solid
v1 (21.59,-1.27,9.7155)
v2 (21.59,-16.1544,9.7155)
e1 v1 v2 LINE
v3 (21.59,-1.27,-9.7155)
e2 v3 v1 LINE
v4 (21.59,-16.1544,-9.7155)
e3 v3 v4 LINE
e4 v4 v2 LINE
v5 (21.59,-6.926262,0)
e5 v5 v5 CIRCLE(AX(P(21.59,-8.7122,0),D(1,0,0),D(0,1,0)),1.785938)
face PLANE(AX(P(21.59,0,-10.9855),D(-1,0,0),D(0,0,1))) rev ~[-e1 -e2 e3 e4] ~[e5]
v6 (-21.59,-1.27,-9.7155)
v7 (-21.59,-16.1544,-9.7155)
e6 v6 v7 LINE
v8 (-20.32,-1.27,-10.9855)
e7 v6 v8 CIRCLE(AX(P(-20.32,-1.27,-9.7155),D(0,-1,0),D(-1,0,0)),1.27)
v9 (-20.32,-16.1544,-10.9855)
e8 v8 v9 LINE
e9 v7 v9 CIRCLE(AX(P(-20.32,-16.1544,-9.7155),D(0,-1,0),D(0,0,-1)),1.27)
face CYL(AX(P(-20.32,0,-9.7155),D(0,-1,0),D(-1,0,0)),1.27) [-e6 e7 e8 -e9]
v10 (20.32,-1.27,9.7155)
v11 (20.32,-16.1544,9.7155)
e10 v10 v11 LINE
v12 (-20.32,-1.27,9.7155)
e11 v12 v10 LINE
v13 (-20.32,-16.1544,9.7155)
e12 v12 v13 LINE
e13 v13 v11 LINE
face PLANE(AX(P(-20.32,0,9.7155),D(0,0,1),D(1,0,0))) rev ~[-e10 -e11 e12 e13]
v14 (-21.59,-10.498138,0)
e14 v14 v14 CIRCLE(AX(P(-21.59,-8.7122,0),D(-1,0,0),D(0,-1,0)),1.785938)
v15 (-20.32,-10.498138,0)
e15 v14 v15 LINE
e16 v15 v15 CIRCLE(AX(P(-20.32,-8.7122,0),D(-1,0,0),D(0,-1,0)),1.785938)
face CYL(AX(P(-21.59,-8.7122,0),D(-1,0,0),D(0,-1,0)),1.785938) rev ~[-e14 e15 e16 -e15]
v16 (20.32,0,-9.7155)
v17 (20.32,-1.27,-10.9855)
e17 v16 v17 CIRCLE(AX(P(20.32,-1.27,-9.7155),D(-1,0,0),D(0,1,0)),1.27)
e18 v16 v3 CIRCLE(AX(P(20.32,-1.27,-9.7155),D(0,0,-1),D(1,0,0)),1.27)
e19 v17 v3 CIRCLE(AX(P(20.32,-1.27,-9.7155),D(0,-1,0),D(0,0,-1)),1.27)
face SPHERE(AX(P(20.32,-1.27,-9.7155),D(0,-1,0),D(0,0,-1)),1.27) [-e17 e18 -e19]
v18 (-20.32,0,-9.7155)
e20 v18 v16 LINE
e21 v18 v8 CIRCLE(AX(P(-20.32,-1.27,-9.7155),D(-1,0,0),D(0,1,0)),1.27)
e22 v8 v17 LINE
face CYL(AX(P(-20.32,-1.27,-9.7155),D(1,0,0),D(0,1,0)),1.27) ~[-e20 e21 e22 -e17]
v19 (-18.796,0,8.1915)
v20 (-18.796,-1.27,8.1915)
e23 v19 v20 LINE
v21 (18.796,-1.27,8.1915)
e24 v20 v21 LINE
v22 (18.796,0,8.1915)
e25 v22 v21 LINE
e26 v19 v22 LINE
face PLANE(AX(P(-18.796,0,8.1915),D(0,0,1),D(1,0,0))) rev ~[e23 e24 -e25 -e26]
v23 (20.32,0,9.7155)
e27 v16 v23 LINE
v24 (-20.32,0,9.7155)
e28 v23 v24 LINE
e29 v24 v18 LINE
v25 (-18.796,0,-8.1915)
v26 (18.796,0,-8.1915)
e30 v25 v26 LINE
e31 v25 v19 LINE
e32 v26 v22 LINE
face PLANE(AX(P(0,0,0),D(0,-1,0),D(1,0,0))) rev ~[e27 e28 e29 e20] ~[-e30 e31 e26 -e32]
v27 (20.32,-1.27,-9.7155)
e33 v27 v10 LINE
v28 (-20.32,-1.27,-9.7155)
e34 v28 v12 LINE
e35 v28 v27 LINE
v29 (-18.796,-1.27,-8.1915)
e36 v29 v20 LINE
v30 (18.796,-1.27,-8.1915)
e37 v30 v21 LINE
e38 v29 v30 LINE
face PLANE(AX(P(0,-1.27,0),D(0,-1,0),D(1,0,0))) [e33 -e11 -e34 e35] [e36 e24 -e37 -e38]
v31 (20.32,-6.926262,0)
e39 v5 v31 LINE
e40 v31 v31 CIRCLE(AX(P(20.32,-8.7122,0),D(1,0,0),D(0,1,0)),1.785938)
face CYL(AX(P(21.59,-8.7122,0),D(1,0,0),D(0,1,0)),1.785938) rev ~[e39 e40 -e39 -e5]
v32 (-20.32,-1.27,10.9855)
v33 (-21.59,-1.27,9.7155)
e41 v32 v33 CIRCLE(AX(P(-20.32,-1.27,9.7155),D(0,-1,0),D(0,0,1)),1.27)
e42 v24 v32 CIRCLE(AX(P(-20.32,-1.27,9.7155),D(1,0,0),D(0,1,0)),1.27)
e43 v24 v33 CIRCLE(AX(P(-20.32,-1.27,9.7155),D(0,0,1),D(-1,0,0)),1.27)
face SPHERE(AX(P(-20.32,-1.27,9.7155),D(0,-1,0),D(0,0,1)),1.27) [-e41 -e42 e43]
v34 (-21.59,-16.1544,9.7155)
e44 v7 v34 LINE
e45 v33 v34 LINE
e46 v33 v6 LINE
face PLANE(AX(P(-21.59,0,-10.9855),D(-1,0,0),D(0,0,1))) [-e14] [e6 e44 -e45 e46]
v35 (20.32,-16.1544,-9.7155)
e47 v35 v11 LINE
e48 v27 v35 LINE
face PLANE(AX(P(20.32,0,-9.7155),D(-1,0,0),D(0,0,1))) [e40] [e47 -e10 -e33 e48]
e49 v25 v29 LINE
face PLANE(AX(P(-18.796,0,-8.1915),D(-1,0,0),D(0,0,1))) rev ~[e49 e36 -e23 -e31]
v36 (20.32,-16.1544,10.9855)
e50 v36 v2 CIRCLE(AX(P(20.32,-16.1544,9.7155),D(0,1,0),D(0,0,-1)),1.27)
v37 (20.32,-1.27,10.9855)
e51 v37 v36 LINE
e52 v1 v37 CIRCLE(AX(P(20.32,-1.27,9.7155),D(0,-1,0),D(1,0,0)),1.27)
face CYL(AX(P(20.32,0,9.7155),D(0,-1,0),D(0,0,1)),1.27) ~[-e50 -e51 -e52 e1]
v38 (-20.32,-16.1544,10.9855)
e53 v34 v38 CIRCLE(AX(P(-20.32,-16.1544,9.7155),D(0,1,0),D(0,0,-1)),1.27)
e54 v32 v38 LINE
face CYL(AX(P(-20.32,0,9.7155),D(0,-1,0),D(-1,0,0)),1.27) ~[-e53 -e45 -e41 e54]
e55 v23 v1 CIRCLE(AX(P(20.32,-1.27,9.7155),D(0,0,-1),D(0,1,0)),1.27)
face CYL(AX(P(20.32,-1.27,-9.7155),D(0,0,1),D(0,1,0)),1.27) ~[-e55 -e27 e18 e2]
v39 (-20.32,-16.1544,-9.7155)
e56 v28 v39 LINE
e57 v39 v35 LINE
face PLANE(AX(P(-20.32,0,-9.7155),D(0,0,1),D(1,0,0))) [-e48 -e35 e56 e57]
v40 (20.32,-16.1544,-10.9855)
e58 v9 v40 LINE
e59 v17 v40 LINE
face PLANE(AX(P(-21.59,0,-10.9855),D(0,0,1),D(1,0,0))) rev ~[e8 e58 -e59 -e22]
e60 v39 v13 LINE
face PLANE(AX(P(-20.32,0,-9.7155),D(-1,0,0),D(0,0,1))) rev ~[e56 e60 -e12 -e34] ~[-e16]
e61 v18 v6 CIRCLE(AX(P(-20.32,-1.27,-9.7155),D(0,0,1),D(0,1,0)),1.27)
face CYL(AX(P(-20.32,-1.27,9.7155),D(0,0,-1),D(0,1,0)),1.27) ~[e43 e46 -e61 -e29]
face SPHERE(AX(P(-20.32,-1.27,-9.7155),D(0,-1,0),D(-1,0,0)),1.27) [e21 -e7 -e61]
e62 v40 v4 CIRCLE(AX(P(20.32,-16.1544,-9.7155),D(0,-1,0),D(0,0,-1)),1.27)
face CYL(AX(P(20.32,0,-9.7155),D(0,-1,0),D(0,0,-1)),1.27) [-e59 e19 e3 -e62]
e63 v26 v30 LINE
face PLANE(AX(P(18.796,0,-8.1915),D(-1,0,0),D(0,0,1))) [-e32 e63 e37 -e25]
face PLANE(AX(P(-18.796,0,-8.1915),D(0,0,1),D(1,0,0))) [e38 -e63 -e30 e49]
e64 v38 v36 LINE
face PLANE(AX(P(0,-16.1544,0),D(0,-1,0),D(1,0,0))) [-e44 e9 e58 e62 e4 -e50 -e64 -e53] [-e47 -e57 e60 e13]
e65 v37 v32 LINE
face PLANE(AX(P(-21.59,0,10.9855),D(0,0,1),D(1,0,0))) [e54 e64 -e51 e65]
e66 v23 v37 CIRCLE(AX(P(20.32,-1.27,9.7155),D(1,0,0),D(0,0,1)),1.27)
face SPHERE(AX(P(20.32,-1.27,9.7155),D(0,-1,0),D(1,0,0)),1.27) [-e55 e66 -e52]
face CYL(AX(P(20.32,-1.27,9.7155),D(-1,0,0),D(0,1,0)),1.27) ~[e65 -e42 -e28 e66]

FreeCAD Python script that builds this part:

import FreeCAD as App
import Part
import Sketcher
from FreeCAD import Vector
Q = App.Units.Quantity


def edges_at(feature, points):
    """Names of the edges that pass closest to the given points."""
    edges = feature.Shape.Edges
    near = lambda p: min(range(len(edges)), key=lambda i: edges[i].distToShape(Part.Vertex(*p))[0])
    return sorted({f"Edge{near(p) + 1}" for p in points})


def add_polygon(sketch, points):
    """Adds a closed chain of lines whose ends are joined by coincident constraints."""
    first, n = sketch.GeometryCount, len(points)
    for a, b in zip(points, points[1:] + points[:1]):
        sketch.addGeometry(Part.LineSegment(App.Vector(*a, 0), App.Vector(*b, 0)), False)
    for i in range(n):
        sketch.addConstraint(Sketcher.Constraint("Coincident", first + i, 2, first + (i + 1) % n, 1))

doc = App.newDocument("Part")
body = doc.addObject("PartDesign::Body", "Body")

sketch1 = body.newObject("Sketcher::SketchObject", "Sketch")
sketch1.AttachmentSupport = (doc.getObject("XZ_Plane"), [""])
sketch1.MapMode = "FlatFace"
add_polygon(sketch1, [(-21.59, 10.9855), (-21.59, -10.9855), (21.59, -10.9855), (21.59, 10.9855)])
add_polygon(sketch1, [(20.32, -9.7155), (-20.32, -9.7155), (-20.32, 9.7155), (20.32, 9.7155)])
sketch1.addConstraint([
    Sketcher.Constraint("Vertical", 0),
    Sketcher.Constraint("Horizontal", 1),
    Sketcher.Constraint("Vertical", 2),
    Sketcher.Constraint("Horizontal", 3),
    Sketcher.Constraint("Horizontal", 4),
    Sketcher.Constraint("Vertical", 5),
    Sketcher.Constraint("Horizontal", 6),
    Sketcher.Constraint("Vertical", 7),
    Sketcher.Constraint("Symmetric", 0, 2, 2, 2, -1, 1),
    Sketcher.Constraint("Symmetric", 4, 2, 6, 2, -1, 1),
    Sketcher.Constraint("DistanceX", 1, 1, 1, 2, Q("1.7 in")),
    Sketcher.Constraint("DistanceX", 4, 2, 4, 1, Q("1.6 in")),
    Sketcher.Constraint("DistanceY", 0, 2, 0, 1, Q("0.865 in")),
    Sketcher.Constraint("DistanceY", 5, 1, 5, 2, Q("0.765 in")),
])
pad1 = body.newObject("PartDesign::Pad", "Pad")
pad1.Profile = sketch1
pad1.Length = Q("0.636 in")

sketch2 = body.newObject("Sketcher::SketchObject", "Sketch001")
sketch2.AttachmentSupport = (doc.getObject("XZ_Plane"), [""])
sketch2.MapMode = "FlatFace"
add_polygon(sketch2, [(-20.32, 9.7155), (-20.32, -9.7155), (20.32, -9.7155), (20.32, 9.7155)])
add_polygon(sketch2, [(18.796, -8.1915), (-18.796, -8.1915), (-18.796, 8.1915), (18.796, 8.1915)])
sketch2.addConstraint([
    Sketcher.Constraint("Vertical", 0),
    Sketcher.Constraint("Horizontal", 1),
    Sketcher.Constraint("Vertical", 2),
    Sketcher.Constraint("Horizontal", 3),
    Sketcher.Constraint("Horizontal", 4),
    Sketcher.Constraint("Vertical", 5),
    Sketcher.Constraint("Horizontal", 6),
    Sketcher.Constraint("Vertical", 7),
    Sketcher.Constraint("Symmetric", 0, 2, 2, 2, -1, 1),
    Sketcher.Constraint("Symmetric", 4, 2, 6, 2, -1, 1),
    Sketcher.Constraint("DistanceX", 1, 1, 1, 2, Q("1.6 in")),
    Sketcher.Constraint("DistanceX", 4, 2, 4, 1, Q("1.48 in")),
    Sketcher.Constraint("DistanceY", 0, 2, 0, 1, Q("0.765 in")),
    Sketcher.Constraint("DistanceY", 5, 1, 5, 2, Q("0.645 in")),
])
pad2 = body.newObject("PartDesign::Pad", "Pad001")
pad2.Profile = sketch2
pad2.Length = Q("0.05 in")
doc.recompute()

fillet = body.newObject("PartDesign::Fillet", "Fillet")
fillet.Base = (pad2, edges_at(pad2, [
    (-21.59, -8.077, 10.986),
    (-21.59, -8.077, -10.986),
    (21.59, -8.077, -10.986),
    (21.59, -8.077, 10.986),
]))
fillet.Radius = Q("0.05 in")
doc.recompute()

fillet2 = body.newObject("PartDesign::Fillet", "Fillet001")
fillet2.Base = (fillet, edges_at(fillet, [(0, 0, -10.986)]))
fillet2.Radius = Q("0.05 in")

sketch3 = body.newObject("Sketcher::SketchObject", "Sketch002")
sketch3.AttachmentSupport = (doc.getObject("YZ_Plane"), [""])
sketch3.MapMode = "FlatFace"
sketch3.AttachmentOffset = App.Placement(Vector(0, 0, 0.85 * 25.4), App.Rotation())
sketch3.addGeometry(Part.Circle(Vector(-8.7122, 0, 0), Vector(0, 0, 1), 1.785938), False)
sketch3.addConstraint([
    Sketcher.Constraint("PointOnObject", 0, 3, -1),
    Sketcher.Constraint("Diameter", 0, Q("0.140625 in")),
    Sketcher.Constraint("DistanceX", 0, 3, -1, 1, Q("0.343 in")),
])
pocket1 = body.newObject("PartDesign::Pocket", "Pocket")
pocket1.Profile = sketch3
pocket1.Length = Q("0.3 in")

sketch4 = body.newObject("Sketcher::SketchObject", "Sketch003")
sketch4.AttachmentSupport = (doc.getObject("YZ_Plane"), [""])
sketch4.MapMode = "FlatFace"
sketch4.AttachmentOffset = App.Placement(Vector(0, 0, -0.85 * 25.4), App.Rotation())
sketch4.addGeometry(Part.Circle(Vector(-8.7122, 0, 0), Vector(0, 0, 1), 1.785938), False)
sketch4.addConstraint([
    Sketcher.Constraint("PointOnObject", 0, 3, -1),
    Sketcher.Constraint("Diameter", 0, Q("0.140625 in")),
    Sketcher.Constraint("DistanceX", 0, 3, -1, 1, Q("0.343 in")),
])
pocket2 = body.newObject("PartDesign::Pocket", "Pocket001")
pocket2.Profile = sketch4
pocket2.Length = Q("0.3 in")
pocket2.Reversed = True

doc.recompute()
